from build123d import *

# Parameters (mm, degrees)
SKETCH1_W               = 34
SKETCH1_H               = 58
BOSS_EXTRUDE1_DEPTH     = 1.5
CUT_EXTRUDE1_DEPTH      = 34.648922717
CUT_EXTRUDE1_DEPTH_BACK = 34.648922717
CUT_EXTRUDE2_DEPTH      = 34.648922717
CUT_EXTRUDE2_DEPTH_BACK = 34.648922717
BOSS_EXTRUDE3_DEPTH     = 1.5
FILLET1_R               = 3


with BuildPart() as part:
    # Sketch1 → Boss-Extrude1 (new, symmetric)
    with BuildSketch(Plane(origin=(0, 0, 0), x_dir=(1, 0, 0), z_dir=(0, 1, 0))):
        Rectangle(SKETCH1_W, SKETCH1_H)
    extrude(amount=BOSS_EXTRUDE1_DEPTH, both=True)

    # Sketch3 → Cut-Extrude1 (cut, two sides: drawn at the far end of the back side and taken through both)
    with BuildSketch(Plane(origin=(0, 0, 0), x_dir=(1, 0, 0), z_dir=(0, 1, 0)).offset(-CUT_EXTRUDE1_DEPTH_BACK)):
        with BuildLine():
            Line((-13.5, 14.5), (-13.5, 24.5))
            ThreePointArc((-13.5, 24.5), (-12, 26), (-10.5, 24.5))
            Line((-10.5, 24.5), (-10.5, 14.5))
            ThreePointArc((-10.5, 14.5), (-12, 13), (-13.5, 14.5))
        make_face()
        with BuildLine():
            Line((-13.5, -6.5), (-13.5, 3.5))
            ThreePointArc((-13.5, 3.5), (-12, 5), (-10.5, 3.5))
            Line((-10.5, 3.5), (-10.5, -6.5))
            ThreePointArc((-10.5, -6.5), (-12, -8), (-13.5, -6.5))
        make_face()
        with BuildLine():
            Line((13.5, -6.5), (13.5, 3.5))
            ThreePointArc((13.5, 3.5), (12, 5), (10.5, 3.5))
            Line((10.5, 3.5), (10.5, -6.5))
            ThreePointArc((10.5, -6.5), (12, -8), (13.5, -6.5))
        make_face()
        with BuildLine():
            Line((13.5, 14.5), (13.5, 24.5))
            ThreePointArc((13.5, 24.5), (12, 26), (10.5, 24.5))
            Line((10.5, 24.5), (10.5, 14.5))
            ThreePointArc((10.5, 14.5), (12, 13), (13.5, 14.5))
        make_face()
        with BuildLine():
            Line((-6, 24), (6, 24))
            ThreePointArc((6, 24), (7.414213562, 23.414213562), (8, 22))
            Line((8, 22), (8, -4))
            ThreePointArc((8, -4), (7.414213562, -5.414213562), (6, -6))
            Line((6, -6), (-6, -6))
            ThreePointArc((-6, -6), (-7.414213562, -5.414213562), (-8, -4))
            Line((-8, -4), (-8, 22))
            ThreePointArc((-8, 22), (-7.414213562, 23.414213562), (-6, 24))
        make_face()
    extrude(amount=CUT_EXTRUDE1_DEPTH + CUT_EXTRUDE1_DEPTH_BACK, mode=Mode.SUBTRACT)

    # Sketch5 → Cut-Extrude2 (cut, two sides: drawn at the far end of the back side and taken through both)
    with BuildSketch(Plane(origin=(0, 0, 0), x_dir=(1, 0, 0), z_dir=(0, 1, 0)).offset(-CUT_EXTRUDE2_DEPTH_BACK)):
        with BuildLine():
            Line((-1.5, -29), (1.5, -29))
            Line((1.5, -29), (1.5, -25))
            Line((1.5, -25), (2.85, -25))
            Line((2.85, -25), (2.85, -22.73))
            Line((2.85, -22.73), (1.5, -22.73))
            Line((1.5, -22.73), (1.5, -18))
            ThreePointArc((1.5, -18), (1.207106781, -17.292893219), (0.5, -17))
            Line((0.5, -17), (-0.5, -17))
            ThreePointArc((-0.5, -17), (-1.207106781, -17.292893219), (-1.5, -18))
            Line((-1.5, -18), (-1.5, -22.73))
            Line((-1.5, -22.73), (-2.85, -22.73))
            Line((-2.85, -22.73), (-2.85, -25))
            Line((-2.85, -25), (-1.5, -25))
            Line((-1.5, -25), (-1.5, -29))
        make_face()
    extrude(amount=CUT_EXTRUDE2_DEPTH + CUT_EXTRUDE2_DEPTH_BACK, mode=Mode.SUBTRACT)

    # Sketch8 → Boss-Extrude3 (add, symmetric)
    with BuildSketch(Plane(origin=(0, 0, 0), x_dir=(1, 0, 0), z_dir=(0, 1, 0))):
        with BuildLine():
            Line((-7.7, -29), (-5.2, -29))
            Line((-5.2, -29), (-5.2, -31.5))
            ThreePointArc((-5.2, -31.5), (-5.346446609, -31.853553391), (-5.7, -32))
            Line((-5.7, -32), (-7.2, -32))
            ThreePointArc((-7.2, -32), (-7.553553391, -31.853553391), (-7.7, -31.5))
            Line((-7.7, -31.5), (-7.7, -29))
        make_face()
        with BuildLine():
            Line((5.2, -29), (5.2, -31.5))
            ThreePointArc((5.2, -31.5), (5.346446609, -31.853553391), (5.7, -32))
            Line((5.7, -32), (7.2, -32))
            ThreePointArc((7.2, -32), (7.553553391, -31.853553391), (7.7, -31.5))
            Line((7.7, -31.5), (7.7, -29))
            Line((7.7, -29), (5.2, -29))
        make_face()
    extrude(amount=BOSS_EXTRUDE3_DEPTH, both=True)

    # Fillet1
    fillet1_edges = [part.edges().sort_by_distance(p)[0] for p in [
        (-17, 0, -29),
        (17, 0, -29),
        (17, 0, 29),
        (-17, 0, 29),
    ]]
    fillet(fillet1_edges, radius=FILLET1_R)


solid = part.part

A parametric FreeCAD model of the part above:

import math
import FreeCAD as App
import Part
import Sketcher
from FreeCAD import Vector


def edges_at(feature, points):
    """Names of the edges that pass closest to the given points."""
    edges = feature.Shape.Edges
    near = lambda p: min(range(len(edges)), key=lambda i: edges[i].distToShape(Part.Vertex(*p))[0])
    return sorted({f"Edge{near(p) + 1}" for p in points})

doc = App.newDocument("Part")
body = doc.addObject("PartDesign::Body", "Body")

# Sketch on XZ plane
sketch1 = doc.addObject("Sketcher::SketchObject", "Sketch")
body.addObject(sketch1)
sketch1.AttachmentSupport = (doc.XZ_Plane, [""])
sketch1.MapMode = "FlatFace"
sketch1.addGeometry([
    Part.LineSegment(Vector(-17, -29, 0), Vector(-17, 29, 0)),
    Part.LineSegment(Vector(-17, 29, 0), Vector(17, 29, 0)),
    Part.LineSegment(Vector(17, 29, 0), Vector(17, -29, 0)),
    Part.LineSegment(Vector(17, -29, 0), Vector(-17, -29, 0)),
], False)
sketch1.addConstraint([
    Sketcher.Constraint("Coincident", 0, 2, 1, 1),
    Sketcher.Constraint("Coincident", 1, 2, 2, 1),
    Sketcher.Constraint("Coincident", 2, 2, 3, 1),
    Sketcher.Constraint("Coincident", 3, 2, 0, 1),
    Sketcher.Constraint("Vertical", 0),
    Sketcher.Constraint("Horizontal", 1),
    Sketcher.Constraint("Vertical", 2),
    Sketcher.Constraint("Horizontal", 3),
    Sketcher.Constraint("Symmetric", 0, 2, 2, 2, -1, 1),
    Sketcher.Constraint("DistanceX", 1, 1, 1, 2, 34.0),
    Sketcher.Constraint("DistanceY", 0, 1, 0, 2, 58.0),
])
pad1 = doc.addObject("PartDesign::Pad", "Pad")
body.addObject(pad1)
pad1.Profile = sketch1
pad1.Length = 3
pad1.Midplane = True

# Sketch on XZ plane
sketch2 = doc.addObject("Sketcher::SketchObject", "Sketch001")
body.addObject(sketch2)
sketch2.AttachmentSupport = (doc.XZ_Plane, [""])
sketch2.MapMode = "FlatFace"
sketch2.addGeometry([
    Part.LineSegment(Vector(-13.5, -24.5, 0), Vector(-13.5, -14.5, 0)),  # 0
    Part.ArcOfCircle(Part.Circle(Vector(-12, -14.5, 0), Vector(0, 0, 1), 1.5), math.radians(0), math.radians(180)),  # 1
    Part.LineSegment(Vector(-10.5, -14.5, 0), Vector(-10.5, -24.5, 0)),  # 2
    Part.ArcOfCircle(Part.Circle(Vector(-12, -24.5, 0), Vector(0, 0, 1), 1.5), math.radians(180), math.radians(360)),  # 3
    Part.LineSegment(Vector(-13.5, -3.5, 0), Vector(-13.5, 6.5, 0)),  # 4
    Part.ArcOfCircle(Part.Circle(Vector(-12, 6.5, 0), Vector(0, 0, 1), 1.5), math.radians(0), math.radians(180)),  # 5
    Part.LineSegment(Vector(-10.5, 6.5, 0), Vector(-10.5, -3.5, 0)),  # 6
    Part.ArcOfCircle(Part.Circle(Vector(-12, -3.5, 0), Vector(0, 0, 1), 1.5), math.radians(180), math.radians(360)),  # 7
    Part.LineSegment(Vector(13.5, 6.5, 0), Vector(13.5, -3.5, 0)),  # 8
    Part.ArcOfCircle(Part.Circle(Vector(12, -3.5, 0), Vector(0, 0, 1), 1.5), math.radians(180), math.radians(360)),  # 9
    Part.LineSegment(Vector(10.5, -3.5, 0), Vector(10.5, 6.5, 0)),  # 10
    Part.ArcOfCircle(Part.Circle(Vector(12, 6.5, 0), Vector(0, 0, 1), 1.5), math.radians(0), math.radians(180)),  # 11
    Part.LineSegment(Vector(13.5, -14.5, 0), Vector(13.5, -24.5, 0)),  # 12
    Part.ArcOfCircle(Part.Circle(Vector(12, -24.5, 0), Vector(0, 0, 1), 1.5), math.radians(180), math.radians(360)),  # 13
    Part.LineSegment(Vector(10.5, -24.5, 0), Vector(10.5, -14.5, 0)),  # 14
    Part.ArcOfCircle(Part.Circle(Vector(12, -14.5, 0), Vector(0, 0, 1), 1.5), math.radians(0), math.radians(180)),  # 15
    Part.LineSegment(Vector(6, -24, 0), Vector(-6, -24, 0)),  # 16
    Part.ArcOfCircle(Part.Circle(Vector(-6, -22, 0), Vector(0, 0, 1), 2), math.radians(-180), math.radians(-90)),  # 17
    Part.LineSegment(Vector(-8, -22, 0), Vector(-8, 4, 0)),  # 18
    Part.ArcOfCircle(Part.Circle(Vector(-6, 4, 0), Vector(0, 0, 1), 2), math.radians(90), math.radians(180)),  # 19
    Part.LineSegment(Vector(-6, 6, 0), Vector(6, 6, 0)),  # 20
    Part.ArcOfCircle(Part.Circle(Vector(6, 4, 0), Vector(0, 0, 1), 2), math.radians(0), math.radians(90)),  # 21
    Part.LineSegment(Vector(8, 4, 0), Vector(8, -22, 0)),  # 22
    Part.ArcOfCircle(Part.Circle(Vector(6, -22, 0), Vector(0, 0, 1), 2), math.radians(-90), math.radians(0)),  # 23
], False)
sketch2.addConstraint([
    Sketcher.Constraint("Tangent", 0, 2, 1, 2),
    Sketcher.Constraint("Tangent", 1, 1, 2, 1),
    Sketcher.Constraint("Tangent", 2, 2, 3, 2),
    Sketcher.Constraint("Tangent", 3, 1, 0, 1),
    Sketcher.Constraint("Tangent", 4, 2, 5, 2),
    Sketcher.Constraint("Tangent", 5, 1, 6, 1),
    Sketcher.Constraint("Tangent", 6, 2, 7, 2),
    Sketcher.Constraint("Tangent", 7, 1, 4, 1),
    Sketcher.Constraint("Tangent", 8, 2, 9, 2),
    Sketcher.Constraint("Tangent", 9, 1, 10, 1),
    Sketcher.Constraint("Tangent", 10, 2, 11, 2),
    Sketcher.Constraint("Tangent", 11, 1, 8, 1),
    Sketcher.Constraint("Tangent", 12, 2, 13, 2),
    Sketcher.Constraint("Tangent", 13, 1, 14, 1),
    Sketcher.Constraint("Tangent", 14, 2, 15, 2),
    Sketcher.Constraint("Tangent", 15, 1, 12, 1),
    Sketcher.Constraint("Tangent", 16, 2, 17, 2),
    Sketcher.Constraint("Tangent", 17, 1, 18, 1),
    Sketcher.Constraint("Tangent", 18, 2, 19, 2),
    Sketcher.Constraint("Tangent", 19, 1, 20, 1),
    Sketcher.Constraint("Tangent", 20, 2, 21, 2),
    Sketcher.Constraint("Tangent", 21, 1, 22, 1),
    Sketcher.Constraint("Tangent", 22, 2, 23, 2),
    Sketcher.Constraint("Tangent", 23, 1, 16, 1),
    Sketcher.Constraint("Vertical", 0),
    Sketcher.Constraint("Vertical", 2),
    Sketcher.Constraint("Vertical", 4),
    Sketcher.Constraint("Vertical", 6),
    Sketcher.Constraint("Vertical", 8),
    Sketcher.Constraint("Vertical", 10),
    Sketcher.Constraint("Vertical", 12),
    Sketcher.Constraint("Vertical", 14),
    Sketcher.Constraint("Horizontal", 16),
    Sketcher.Constraint("Vertical", 18),
    Sketcher.Constraint("Horizontal", 20),
    Sketcher.Constraint("Vertical", 22),
    Sketcher.Constraint("Equal", 3, 5),
    Sketcher.Constraint("Equal", 7, 9),
    Sketcher.Constraint("Equal", 11, 13),
    Sketcher.Constraint("Equal", 17, 19),
    Sketcher.Constraint("Equal", 19, 21),
    Sketcher.Constraint("Equal", 21, 23),
    Sketcher.Constraint("Symmetric", 7, 3, 9, 3, -2),
    Sketcher.Constraint("Symmetric", 3, 3, 13, 3, -2),
    Sketcher.Constraint("Horizontal", 5, 3, 11, 3),
    Sketcher.Constraint("Horizontal", 1, 3, 15, 3),
    Sketcher.Constraint("Vertical", 3, 3, 5, 3),
    Sketcher.Constraint("Equal", 2, 4),
    Sketcher.Constraint("Radius", 17, 2.0),
    Sketcher.Constraint("Radius", 1, 1.5),
    Sketcher.Constraint("DistanceX", 16, 2, 16, 1, 12.0),
    Sketcher.Constraint("DistanceY", 0, 1, 0, 2, 10.0),
    Sketcher.Constraint("DistanceY", 18, 1, 18, 2, 26.0),
    Sketcher.Constraint("DistanceX", 1, 3, -1, 1, 12.0),
    Sketcher.Constraint("DistanceX", 17, 3, -1, 1, 6.0),
    Sketcher.Constraint("DistanceY", 17, 3, -1, 1, 22.0),
    Sketcher.Constraint("DistanceY", 1, 3, 5, 3, 21.0),
    Sketcher.Constraint("DistanceY", 1, 3, -1, 1, 14.5),
])
pocket1 = doc.addObject("PartDesign::Pocket", "Pocket")
body.addObject(pocket1)
pocket1.Profile = sketch2
pocket1.Type = "ThroughAll"
pocket1.Midplane = True

# Sketch on XZ plane
sketch3 = doc.addObject("Sketcher::SketchObject", "Sketch002")
body.addObject(sketch3)
sketch3.AttachmentSupport = (doc.XZ_Plane, [""])
sketch3.MapMode = "FlatFace"
sketch3.addGeometry([
    Part.LineSegment(Vector(-1.5, 29, 0), Vector(1.5, 29, 0)),  # 0
    Part.LineSegment(Vector(1.5, 29, 0), Vector(1.5, 25, 0)),  # 1
    Part.LineSegment(Vector(1.5, 25, 0), Vector(2.9, 25, 0)),  # 2
    Part.LineSegment(Vector(2.9, 25, 0), Vector(2.9, 22.7, 0)),  # 3
    Part.LineSegment(Vector(2.9, 22.7, 0), Vector(1.5, 22.7, 0)),  # 4
    Part.LineSegment(Vector(1.5, 22.7, 0), Vector(1.5, 18, 0)),  # 5
    Part.ArcOfCircle(Part.Circle(Vector(0.5, 18, 0), Vector(0, 0, 1), 1), math.radians(-90), math.radians(0)),  # 6
    Part.LineSegment(Vector(0.5, 17, 0), Vector(-0.5, 17, 0)),  # 7
    Part.ArcOfCircle(Part.Circle(Vector(-0.5, 18, 0), Vector(0, 0, 1), 1), math.radians(-180), math.radians(-90)),  # 8
    Part.LineSegment(Vector(-1.5, 18, 0), Vector(-1.5, 22.7, 0)),  # 9
    Part.LineSegment(Vector(-1.5, 22.7, 0), Vector(-2.9, 22.7, 0)),  # 10
    Part.LineSegment(Vector(-2.9, 22.7, 0), Vector(-2.9, 25, 0)),  # 11
    Part.LineSegment(Vector(-2.9, 25, 0), Vector(-1.5, 25, 0)),  # 12
    Part.LineSegment(Vector(-1.5, 25, 0), Vector(-1.5, 29, 0)),  # 13
], False)
sketch3.addConstraint([
    Sketcher.Constraint("Coincident", 0, 2, 1, 1),
    Sketcher.Constraint("Coincident", 1, 2, 2, 1),
    Sketcher.Constraint("Coincident", 2, 2, 3, 1),
    Sketcher.Constraint("Coincident", 3, 2, 4, 1),
    Sketcher.Constraint("Coincident", 4, 2, 5, 1),
    Sketcher.Constraint("Tangent", 5, 2, 6, 2),
    Sketcher.Constraint("Tangent", 6, 1, 7, 1),
    Sketcher.Constraint("Tangent", 7, 2, 8, 2),
    Sketcher.Constraint("Tangent", 8, 1, 9, 1),
    Sketcher.Constraint("Coincident", 9, 2, 10, 1),
    Sketcher.Constraint("Coincident", 10, 2, 11, 1),
    Sketcher.Constraint("Coincident", 11, 2, 12, 1),
    Sketcher.Constraint("Coincident", 12, 2, 13, 1),
    Sketcher.Constraint("Coincident", 13, 2, 0, 1),
    Sketcher.Constraint("Horizontal", 0),
    Sketcher.Constraint("Vertical", 1),
    Sketcher.Constraint("Horizontal", 2),
    Sketcher.Constraint("Vertical", 3),
    Sketcher.Constraint("Horizontal", 4),
    Sketcher.Constraint("Vertical", 5),
    Sketcher.Constraint("Horizontal", 7),
    Sketcher.Constraint("Vertical", 9),
    Sketcher.Constraint("Horizontal", 10),
    Sketcher.Constraint("Vertical", 11),
    Sketcher.Constraint("Horizontal", 12),
    Sketcher.Constraint("Vertical", 13),
    Sketcher.Constraint("Equal", 6, 8),
    Sketcher.Constraint("Symmetric", 4, 2, 9, 2, -2),
    Sketcher.Constraint("Symmetric", 2, 2, 11, 2, -2),
    Sketcher.Constraint("Vertical", 1, 2, 4, 2),
    Sketcher.Constraint("Vertical", 9, 2, 12, 2),
    Sketcher.Constraint("Radius", 6, 1.0),
    Sketcher.Constraint("DistanceX", 0, 1, 0, 2, 3.0),
    Sketcher.Constraint("DistanceY", 1, 2, 1, 1, 4.0),
    Sketcher.Constraint("DistanceY", -1, 1, 6, 3, 18.0),
    Sketcher.Constraint("DistanceY", -1, 1, 0, 2, 29.0),
    Sketcher.Constraint("DistanceX", 2, 1, 2, 2, 1.35),
    Sketcher.Constraint("DistanceY", 3, 2, 3, 1, 2.27),
])
pocket2 = doc.addObject("PartDesign::Pocket", "Pocket001")
body.addObject(pocket2)
pocket2.Profile = sketch3
pocket2.Type = "ThroughAll"
pocket2.Midplane = True

# Sketch on XZ plane
sketch4 = doc.addObject("Sketcher::SketchObject", "Sketch003")
body.addObject(sketch4)
sketch4.AttachmentSupport = (doc.XZ_Plane, [""])
sketch4.MapMode = "FlatFace"
sketch4.addGeometry([
    Part.LineSegment(Vector(-5.2, 29, 0), Vector(-7.7, 29, 0)),  # 0
    Part.LineSegment(Vector(-7.7, 29, 0), Vector(-7.7, 31.5, 0)),  # 1
    Part.ArcOfCircle(Part.Circle(Vector(-7.2, 31.5, 0), Vector(0, 0, 1), 0.5), math.radians(90), math.radians(180)),  # 2
    Part.LineSegment(Vector(-7.2, 32, 0), Vector(-5.7, 32, 0)),  # 3
    Part.ArcOfCircle(Part.Circle(Vector(-5.7, 31.5, 0), Vector(0, 0, 1), 0.5), math.radians(0), math.radians(90)),  # 4
    Part.LineSegment(Vector(-5.2, 31.5, 0), Vector(-5.2, 29, 0)),  # 5
    Part.LineSegment(Vector(5.2, 29, 0), Vector(5.2, 31.5, 0)),  # 6
    Part.ArcOfCircle(Part.Circle(Vector(5.7, 31.5, 0), Vector(0, 0, 1), 0.5), math.radians(90), math.radians(180)),  # 7
    Part.LineSegment(Vector(5.7, 32, 0), Vector(7.2, 32, 0)),  # 8
    Part.ArcOfCircle(Part.Circle(Vector(7.2, 31.5, 0), Vector(0, 0, 1), 0.5), math.radians(0), math.radians(90)),  # 9
    Part.LineSegment(Vector(7.7, 31.5, 0), Vector(7.7, 29, 0)),  # 10
    Part.LineSegment(Vector(7.7, 29, 0), Vector(5.2, 29, 0)),  # 11
], False)
sketch4.addConstraint([
    Sketcher.Constraint("Coincident", 0, 2, 1, 1),
    Sketcher.Constraint("Tangent", 1, 2, 2, 2),
    Sketcher.Constraint("Tangent", 2, 1, 3, 1),
    Sketcher.Constraint("Tangent", 3, 2, 4, 2),
    Sketcher.Constraint("Tangent", 4, 1, 5, 1),
    Sketcher.Constraint("Coincident", 5, 2, 0, 1),
    Sketcher.Constraint("Tangent", 6, 2, 7, 2),
    Sketcher.Constraint("Tangent", 7, 1, 8, 1),
    Sketcher.Constraint("Tangent", 8, 2, 9, 2),
    Sketcher.Constraint("Tangent", 9, 1, 10, 1),
    Sketcher.Constraint("Coincident", 10, 2, 11, 1),
    Sketcher.Constraint("Coincident", 11, 2, 6, 1),
    Sketcher.Constraint("Horizontal", 0),
    Sketcher.Constraint("Vertical", 1),
    Sketcher.Constraint("Horizontal", 3),
    Sketcher.Constraint("Vertical", 5),
    Sketcher.Constraint("Vertical", 6),
    Sketcher.Constraint("Horizontal", 8),
    Sketcher.Constraint("Vertical", 10),
    Sketcher.Constraint("Horizontal", 11),
    Sketcher.Constraint("Equal", 2, 4),
    Sketcher.Constraint("Equal", 4, 7),
    Sketcher.Constraint("Equal", 7, 9),
    Sketcher.Constraint("Symmetric", 4, 3, 7, 3, -2),
    Sketcher.Constraint("Symmetric", 0, 2, 10, 2, -2),
    Sketcher.Constraint("Equal", 11, 1),
    Sketcher.Constraint("Radius", 2, 0.5),
    Sketcher.Constraint("DistanceX", 0, 2, 0, 1, 2.5),
    Sketcher.Constraint("DistanceY", -1, 1, 0, 2, 29.0),
    Sketcher.Constraint("DistanceX", 2, 3, -1, 1, 7.2),
])
pad2 = doc.addObject("PartDesign::Pad", "Pad001")
body.addObject(pad2)
pad2.Profile = sketch4
pad2.Length = 3
pad2.Midplane = True
doc.recompute()

fillet = doc.addObject("PartDesign::Fillet", "Fillet")
body.addObject(fillet)
fillet.Base = (pad2, edges_at(pad2, [
    (-17, 0, -29),
    (17, 0, -29),
    (17, 0, 29),
    (-17, 0, 29),
]))
fillet.Radius = 3

doc.recompute()
